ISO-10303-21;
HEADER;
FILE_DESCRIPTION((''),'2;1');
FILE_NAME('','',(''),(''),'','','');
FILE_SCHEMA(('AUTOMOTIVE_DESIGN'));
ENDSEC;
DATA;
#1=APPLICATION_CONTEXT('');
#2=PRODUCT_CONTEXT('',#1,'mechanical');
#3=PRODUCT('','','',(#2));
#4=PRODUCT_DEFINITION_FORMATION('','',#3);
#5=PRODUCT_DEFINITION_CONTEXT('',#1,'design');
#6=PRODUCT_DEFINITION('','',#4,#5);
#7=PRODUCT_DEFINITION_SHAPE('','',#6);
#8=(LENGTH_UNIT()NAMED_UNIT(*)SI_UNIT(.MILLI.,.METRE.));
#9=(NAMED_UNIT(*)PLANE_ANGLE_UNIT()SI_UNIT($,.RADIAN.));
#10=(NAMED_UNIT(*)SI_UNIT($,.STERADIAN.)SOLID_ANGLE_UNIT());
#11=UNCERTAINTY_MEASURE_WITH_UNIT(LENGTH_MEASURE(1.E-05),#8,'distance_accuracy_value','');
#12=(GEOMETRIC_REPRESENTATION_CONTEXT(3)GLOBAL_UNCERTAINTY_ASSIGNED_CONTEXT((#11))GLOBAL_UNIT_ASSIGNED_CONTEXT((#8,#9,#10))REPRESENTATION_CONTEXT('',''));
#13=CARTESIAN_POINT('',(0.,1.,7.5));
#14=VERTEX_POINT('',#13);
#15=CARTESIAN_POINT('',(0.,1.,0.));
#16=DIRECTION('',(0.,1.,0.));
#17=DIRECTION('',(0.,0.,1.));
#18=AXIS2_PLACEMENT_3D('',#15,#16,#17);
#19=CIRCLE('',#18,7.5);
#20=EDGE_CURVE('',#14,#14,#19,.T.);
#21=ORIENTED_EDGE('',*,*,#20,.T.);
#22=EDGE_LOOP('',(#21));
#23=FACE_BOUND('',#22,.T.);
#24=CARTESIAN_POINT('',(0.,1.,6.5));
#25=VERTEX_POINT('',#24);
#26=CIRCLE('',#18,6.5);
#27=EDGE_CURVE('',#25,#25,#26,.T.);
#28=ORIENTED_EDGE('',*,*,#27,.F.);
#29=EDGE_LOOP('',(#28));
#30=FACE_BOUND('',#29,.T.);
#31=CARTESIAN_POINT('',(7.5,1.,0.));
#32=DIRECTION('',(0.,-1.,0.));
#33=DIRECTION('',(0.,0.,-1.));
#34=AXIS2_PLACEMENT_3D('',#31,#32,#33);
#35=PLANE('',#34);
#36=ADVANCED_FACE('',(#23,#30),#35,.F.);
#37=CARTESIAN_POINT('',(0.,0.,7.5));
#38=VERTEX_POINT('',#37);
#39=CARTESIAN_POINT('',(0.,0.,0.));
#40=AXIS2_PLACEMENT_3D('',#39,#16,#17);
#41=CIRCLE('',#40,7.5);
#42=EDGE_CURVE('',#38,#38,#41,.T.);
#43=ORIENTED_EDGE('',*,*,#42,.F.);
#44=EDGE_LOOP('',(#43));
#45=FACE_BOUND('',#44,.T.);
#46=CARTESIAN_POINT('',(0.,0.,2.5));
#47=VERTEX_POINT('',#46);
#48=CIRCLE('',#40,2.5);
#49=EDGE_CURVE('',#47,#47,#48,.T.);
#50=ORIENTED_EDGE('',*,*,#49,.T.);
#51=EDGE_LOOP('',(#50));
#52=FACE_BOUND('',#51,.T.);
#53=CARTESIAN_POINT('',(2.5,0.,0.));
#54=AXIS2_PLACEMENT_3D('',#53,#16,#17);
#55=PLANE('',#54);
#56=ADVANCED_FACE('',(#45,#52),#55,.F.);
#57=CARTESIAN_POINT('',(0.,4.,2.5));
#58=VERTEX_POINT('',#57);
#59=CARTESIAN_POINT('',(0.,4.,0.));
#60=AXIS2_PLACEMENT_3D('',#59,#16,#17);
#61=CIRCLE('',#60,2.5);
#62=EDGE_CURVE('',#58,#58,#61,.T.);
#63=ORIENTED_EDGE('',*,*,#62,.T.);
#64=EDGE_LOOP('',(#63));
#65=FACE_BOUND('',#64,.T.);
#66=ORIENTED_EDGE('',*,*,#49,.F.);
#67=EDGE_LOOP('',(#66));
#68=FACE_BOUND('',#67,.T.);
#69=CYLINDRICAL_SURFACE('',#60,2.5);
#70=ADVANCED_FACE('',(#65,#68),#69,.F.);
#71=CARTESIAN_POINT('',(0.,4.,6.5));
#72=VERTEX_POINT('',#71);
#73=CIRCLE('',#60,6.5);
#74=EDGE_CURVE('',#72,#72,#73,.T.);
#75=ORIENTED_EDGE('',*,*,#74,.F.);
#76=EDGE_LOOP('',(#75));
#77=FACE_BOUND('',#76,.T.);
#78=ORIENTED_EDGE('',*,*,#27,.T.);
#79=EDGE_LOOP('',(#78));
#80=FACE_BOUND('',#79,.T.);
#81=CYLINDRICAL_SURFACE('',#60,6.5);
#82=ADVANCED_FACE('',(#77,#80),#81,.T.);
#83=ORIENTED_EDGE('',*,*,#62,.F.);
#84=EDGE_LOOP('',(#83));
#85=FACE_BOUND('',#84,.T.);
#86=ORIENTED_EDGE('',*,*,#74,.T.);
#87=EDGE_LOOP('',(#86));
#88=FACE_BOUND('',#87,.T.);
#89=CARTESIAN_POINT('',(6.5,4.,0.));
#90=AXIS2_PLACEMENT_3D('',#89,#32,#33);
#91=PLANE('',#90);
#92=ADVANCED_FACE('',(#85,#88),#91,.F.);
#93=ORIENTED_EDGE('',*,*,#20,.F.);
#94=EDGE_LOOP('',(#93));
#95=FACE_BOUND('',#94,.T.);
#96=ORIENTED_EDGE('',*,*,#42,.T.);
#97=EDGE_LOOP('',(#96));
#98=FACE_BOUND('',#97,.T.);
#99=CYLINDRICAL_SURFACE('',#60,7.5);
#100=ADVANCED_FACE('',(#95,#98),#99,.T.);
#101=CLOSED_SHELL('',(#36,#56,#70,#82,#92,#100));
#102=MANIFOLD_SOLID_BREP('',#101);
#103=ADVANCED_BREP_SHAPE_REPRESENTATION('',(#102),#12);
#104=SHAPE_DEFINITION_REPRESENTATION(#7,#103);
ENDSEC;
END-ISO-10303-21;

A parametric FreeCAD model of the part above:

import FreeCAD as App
import Part
import Sketcher


def add_polygon(sketch, points):
    """Adds a closed chain of lines whose ends are joined by coincident constraints."""
    first, n = sketch.GeometryCount, len(points)
    for a, b in zip(points, points[1:] + points[:1]):
        sketch.addGeometry(Part.LineSegment(App.Vector(*a, 0), App.Vector(*b, 0)), False)
    for i in range(n):
        sketch.addConstraint(Sketcher.Constraint("Coincident", first + i, 2, first + (i + 1) % n, 1))

doc = App.newDocument("Part")
body = doc.addObject("PartDesign::Body", "Body")

# Sketch on XY plane
sketch1 = body.newObject("Sketcher::SketchObject", "Sketch")
sketch1.AttachmentSupport = (doc.getObject("XY_Plane"), [""])
sketch1.MapMode = "FlatFace"
add_polygon(sketch1, [(2.5, 0), (7.5, 0), (7.5, 1), (6.5, 1), (6.5, 4), (2.5, 4)])  # lines 0-5
sketch1.addConstraint([
    Sketcher.Constraint("Horizontal", 0),
    Sketcher.Constraint("Vertical", 1),
    Sketcher.Constraint("Horizontal", 2),
    Sketcher.Constraint("Vertical", 3),
    Sketcher.Constraint("Horizontal", 4),
    Sketcher.Constraint("Vertical", 5),
    Sketcher.Constraint("PointOnObject", 0, 2, -1),
    Sketcher.Constraint("Equal", 2, 1),
    Sketcher.Constraint("Equal", 4, 5),
    Sketcher.Constraint("DistanceX", 0, 1, 0, 2, 5.0),
    Sketcher.Constraint("DistanceX", 2, 2, 2, 1, 1.0),
    Sketcher.Constraint("DistanceX", -1, 1, 0, 2, 7.5),
])
revolution = body.newObject("PartDesign::Revolution", "Revolution")
revolution.Profile = sketch1
revolution.ReferenceAxis = (sketch1, ["V_Axis"])
revolution.Angle = 360

doc.recompute()
